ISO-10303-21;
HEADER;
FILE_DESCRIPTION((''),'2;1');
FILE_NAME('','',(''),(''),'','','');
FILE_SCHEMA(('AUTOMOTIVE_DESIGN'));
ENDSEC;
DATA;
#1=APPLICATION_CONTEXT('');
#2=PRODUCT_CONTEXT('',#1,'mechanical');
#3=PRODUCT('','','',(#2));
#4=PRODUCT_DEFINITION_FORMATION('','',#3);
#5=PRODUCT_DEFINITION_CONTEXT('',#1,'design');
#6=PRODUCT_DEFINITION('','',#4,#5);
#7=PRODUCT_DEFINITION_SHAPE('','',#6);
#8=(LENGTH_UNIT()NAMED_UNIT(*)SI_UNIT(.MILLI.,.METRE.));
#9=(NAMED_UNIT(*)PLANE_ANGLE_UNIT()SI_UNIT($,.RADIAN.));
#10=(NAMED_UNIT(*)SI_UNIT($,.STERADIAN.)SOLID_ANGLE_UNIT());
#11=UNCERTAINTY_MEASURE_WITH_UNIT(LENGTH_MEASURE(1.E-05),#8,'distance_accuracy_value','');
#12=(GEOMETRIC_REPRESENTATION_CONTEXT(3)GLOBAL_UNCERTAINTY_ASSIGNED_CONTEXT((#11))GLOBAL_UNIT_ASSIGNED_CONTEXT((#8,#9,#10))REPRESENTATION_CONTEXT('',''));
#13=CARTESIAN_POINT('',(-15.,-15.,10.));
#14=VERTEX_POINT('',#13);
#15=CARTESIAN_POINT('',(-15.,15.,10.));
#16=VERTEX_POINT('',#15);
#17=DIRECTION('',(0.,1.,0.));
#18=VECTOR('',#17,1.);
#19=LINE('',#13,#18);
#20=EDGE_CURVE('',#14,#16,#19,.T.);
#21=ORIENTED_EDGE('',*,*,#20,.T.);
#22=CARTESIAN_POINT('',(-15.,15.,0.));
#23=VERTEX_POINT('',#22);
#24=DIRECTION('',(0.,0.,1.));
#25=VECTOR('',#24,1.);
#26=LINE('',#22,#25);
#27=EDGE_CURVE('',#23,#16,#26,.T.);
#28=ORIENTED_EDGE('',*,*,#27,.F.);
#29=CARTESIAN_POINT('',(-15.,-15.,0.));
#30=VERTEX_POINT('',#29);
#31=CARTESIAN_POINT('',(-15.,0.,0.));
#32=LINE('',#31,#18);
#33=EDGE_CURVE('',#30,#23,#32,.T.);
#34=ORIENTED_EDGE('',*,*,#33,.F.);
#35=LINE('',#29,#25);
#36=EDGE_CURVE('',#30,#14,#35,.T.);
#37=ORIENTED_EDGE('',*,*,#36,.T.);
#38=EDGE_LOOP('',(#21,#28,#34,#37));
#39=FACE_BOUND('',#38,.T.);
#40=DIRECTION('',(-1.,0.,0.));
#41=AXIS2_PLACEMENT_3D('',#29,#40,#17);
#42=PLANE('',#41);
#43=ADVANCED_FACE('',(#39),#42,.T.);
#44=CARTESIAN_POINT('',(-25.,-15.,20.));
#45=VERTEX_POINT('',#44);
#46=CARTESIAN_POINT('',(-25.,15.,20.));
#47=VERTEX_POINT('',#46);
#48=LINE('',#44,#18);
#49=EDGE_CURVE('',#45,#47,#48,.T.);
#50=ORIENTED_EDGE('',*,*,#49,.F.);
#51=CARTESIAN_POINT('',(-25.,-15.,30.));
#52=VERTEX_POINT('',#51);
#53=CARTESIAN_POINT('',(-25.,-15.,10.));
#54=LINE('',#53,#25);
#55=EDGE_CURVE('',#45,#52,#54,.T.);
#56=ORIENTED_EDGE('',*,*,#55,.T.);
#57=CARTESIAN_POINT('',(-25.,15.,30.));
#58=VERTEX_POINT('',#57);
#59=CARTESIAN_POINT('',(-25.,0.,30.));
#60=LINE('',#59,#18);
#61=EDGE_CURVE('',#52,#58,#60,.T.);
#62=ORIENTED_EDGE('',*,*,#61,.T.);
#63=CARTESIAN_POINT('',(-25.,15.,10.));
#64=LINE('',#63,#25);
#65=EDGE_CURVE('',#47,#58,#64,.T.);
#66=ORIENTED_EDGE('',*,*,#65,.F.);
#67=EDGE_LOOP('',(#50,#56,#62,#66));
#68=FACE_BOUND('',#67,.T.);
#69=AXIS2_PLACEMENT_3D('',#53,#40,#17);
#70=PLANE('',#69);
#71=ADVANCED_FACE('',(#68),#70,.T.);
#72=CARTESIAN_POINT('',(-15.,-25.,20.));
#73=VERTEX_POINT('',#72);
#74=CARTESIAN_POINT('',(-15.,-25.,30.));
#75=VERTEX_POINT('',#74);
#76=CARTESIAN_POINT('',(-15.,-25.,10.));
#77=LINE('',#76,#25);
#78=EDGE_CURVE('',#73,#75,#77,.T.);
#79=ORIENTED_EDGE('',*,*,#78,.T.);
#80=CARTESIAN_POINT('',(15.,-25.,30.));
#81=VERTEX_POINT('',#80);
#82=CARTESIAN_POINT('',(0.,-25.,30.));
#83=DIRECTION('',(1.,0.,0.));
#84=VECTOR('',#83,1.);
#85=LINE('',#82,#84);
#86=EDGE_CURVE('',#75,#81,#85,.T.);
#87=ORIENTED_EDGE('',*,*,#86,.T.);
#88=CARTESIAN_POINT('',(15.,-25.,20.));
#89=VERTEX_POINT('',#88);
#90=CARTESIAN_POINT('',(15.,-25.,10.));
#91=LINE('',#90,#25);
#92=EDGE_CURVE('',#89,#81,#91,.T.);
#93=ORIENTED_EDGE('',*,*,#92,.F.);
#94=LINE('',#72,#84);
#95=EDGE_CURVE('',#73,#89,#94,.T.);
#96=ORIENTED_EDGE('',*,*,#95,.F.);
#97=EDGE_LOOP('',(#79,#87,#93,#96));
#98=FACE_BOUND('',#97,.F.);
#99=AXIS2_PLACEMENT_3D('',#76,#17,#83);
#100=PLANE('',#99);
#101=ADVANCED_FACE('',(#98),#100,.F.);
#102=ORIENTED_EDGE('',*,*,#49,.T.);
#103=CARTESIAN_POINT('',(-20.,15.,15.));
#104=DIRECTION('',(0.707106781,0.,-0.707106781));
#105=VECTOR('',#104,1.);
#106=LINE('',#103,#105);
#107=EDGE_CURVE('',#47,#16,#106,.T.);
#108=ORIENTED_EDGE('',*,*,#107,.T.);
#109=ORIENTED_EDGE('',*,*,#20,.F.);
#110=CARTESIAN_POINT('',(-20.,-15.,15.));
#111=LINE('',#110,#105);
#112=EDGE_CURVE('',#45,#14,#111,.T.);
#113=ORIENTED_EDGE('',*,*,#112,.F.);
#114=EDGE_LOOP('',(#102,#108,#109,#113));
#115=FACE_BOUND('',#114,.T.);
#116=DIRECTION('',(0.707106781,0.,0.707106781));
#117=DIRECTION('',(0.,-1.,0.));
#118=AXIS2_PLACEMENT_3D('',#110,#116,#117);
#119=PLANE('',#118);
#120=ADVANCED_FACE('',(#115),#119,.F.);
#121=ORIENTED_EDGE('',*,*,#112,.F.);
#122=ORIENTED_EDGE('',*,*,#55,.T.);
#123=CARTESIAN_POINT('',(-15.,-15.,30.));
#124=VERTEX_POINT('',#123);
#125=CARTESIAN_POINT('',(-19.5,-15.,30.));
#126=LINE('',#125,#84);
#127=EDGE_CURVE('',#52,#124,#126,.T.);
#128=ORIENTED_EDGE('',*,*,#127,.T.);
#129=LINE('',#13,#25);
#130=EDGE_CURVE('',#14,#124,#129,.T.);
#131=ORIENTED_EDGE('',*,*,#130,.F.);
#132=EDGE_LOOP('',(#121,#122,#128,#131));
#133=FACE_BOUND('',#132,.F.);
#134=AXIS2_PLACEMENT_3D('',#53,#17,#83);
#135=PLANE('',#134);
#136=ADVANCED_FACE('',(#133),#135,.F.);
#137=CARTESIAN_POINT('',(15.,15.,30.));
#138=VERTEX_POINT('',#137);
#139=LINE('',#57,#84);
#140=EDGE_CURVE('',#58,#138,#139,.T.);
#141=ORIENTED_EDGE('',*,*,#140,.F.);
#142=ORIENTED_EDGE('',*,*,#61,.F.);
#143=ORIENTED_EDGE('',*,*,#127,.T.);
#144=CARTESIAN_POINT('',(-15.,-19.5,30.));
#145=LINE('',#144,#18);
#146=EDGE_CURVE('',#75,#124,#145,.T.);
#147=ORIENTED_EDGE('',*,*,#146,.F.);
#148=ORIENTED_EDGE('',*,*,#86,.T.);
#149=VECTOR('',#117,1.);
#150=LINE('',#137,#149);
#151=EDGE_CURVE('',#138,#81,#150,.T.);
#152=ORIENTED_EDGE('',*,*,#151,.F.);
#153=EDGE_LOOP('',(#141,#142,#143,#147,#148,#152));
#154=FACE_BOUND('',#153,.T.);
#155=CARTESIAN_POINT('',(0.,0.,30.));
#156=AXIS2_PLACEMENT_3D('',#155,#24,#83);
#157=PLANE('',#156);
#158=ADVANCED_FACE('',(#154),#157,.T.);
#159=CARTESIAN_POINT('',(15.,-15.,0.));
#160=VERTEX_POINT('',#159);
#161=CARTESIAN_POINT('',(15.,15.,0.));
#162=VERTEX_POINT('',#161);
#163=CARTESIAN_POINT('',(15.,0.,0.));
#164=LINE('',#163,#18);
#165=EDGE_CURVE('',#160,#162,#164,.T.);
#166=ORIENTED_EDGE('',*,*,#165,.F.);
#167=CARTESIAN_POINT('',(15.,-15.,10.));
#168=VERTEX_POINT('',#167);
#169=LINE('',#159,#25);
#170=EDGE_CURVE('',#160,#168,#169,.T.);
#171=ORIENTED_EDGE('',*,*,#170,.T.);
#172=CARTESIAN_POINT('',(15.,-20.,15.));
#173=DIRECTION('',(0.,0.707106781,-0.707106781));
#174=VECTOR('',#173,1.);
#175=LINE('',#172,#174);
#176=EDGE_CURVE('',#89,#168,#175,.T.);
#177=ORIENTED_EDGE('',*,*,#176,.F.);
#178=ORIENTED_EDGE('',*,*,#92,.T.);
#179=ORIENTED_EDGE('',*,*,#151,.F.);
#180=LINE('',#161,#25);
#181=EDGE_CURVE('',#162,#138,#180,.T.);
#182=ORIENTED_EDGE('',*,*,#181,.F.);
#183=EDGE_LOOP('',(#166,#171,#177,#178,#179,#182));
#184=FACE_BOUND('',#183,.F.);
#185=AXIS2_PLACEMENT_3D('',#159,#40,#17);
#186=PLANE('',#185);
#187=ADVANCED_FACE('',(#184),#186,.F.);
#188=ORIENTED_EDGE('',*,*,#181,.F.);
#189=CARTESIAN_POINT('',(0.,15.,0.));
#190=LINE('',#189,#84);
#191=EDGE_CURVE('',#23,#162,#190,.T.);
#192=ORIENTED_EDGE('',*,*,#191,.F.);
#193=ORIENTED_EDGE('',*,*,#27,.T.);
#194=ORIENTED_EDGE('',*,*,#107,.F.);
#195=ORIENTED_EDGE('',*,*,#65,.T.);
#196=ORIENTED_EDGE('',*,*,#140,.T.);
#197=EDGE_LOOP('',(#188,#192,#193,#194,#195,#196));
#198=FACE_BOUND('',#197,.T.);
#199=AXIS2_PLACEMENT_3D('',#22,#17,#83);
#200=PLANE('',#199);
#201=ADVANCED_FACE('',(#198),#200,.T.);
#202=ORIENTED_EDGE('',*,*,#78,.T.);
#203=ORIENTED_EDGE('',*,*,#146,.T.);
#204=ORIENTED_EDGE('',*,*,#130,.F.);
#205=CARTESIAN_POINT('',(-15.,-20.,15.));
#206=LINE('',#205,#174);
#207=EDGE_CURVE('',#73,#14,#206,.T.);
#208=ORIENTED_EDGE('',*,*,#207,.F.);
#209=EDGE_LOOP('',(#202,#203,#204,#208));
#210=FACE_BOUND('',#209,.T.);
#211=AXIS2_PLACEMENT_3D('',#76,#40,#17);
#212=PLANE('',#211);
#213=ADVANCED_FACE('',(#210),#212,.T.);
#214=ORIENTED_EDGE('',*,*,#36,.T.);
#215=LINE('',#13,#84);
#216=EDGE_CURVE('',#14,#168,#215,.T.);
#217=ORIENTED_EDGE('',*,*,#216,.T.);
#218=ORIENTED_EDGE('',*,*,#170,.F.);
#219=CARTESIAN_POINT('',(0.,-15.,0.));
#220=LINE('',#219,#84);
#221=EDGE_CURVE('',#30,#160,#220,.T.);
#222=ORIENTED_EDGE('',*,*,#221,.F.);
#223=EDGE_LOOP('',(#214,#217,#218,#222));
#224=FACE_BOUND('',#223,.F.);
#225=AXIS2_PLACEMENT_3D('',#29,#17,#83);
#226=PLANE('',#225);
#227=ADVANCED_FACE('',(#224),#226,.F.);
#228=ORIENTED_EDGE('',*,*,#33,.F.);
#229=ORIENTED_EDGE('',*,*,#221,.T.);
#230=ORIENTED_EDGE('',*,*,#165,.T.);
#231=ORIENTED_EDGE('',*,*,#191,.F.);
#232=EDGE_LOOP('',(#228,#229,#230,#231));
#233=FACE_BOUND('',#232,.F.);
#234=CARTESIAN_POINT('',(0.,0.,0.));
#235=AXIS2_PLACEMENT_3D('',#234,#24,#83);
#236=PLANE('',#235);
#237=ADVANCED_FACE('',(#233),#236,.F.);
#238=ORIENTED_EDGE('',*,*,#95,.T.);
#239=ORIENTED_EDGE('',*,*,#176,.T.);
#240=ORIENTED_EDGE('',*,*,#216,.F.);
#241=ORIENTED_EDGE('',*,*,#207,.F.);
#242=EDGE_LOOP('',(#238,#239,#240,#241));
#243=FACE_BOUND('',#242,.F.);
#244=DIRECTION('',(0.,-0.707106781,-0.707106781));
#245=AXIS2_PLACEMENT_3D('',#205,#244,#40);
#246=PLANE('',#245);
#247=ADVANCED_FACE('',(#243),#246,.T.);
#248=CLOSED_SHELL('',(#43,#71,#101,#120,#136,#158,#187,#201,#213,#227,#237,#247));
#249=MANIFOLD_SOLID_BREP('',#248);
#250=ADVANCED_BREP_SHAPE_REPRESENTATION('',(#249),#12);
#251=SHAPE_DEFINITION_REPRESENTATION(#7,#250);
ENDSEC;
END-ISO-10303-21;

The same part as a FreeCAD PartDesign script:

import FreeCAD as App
import Part
import Sketcher

V = App.Vector
Q = App.Units.Quantity


def edges_at(feature, points):
    """Names of the edges that pass closest to the given points."""
    edges = feature.Shape.Edges
    near = lambda p: min(range(len(edges)), key=lambda i: edges[i].distToShape(Part.Vertex(*p))[0])
    return sorted({f"Edge{near(p) + 1}" for p in points})

doc = App.newDocument("Part")
params = doc.addObject("Spreadsheet::Sheet", "Params")
for row, (alias, value) in enumerate([
    ("sketch1_width", "30 mm"),
    ("sketch1_height", "11 mm"),
    ("pad1_length", "20 mm"),
    ("chamfer_size", "10 mm"),
    ("sketch2_width", "30 mm"),
    ("pad2_length", "30 mm"),
    ("sketch3_width", "11 mm"),
    ("sketch3_height", "30 mm"),
    ("pad3_length", "20 mm"),
    ("chamfer2_size", "10 mm"),
], start=1):
    params.set(f"A{row}", alias)
    params.set(f"B{row}", "=" + value)
    params.setAlias(f"B{row}", alias)

body = doc.addObject("PartDesign::Body", "Body")

# Sketch on XY plane
sketch1 = body.newObject("Sketcher::SketchObject", "Sketch")
sketch1.AttachmentSupport = (doc.getObject("XY_Plane"), [""])
sketch1.MapMode = "FlatFace"
sketch1.AttachmentOffset = App.Placement(V(0, 0, 10), App.Rotation())
sketch1.addGeometry(Part.LineSegment(V(-15, -14, 0), V(-15, -25, 0)), False)
sketch1.addGeometry(Part.LineSegment(V(-15, -25, 0), V(15, -25, 0)), False)
sketch1.addGeometry(Part.LineSegment(V(15, -25, 0), V(15, -14, 0)), False)
sketch1.addGeometry(Part.LineSegment(V(15, -14, 0), V(-15, -14, 0)), False)
sketch1.addConstraint(Sketcher.Constraint("Coincident", 0, 2, 1, 1))
sketch1.addConstraint(Sketcher.Constraint("Coincident", 1, 2, 2, 1))
sketch1.addConstraint(Sketcher.Constraint("Coincident", 2, 2, 3, 1))
sketch1.addConstraint(Sketcher.Constraint("Coincident", 3, 2, 0, 1))
sketch1.addConstraint(Sketcher.Constraint("Vertical", 0))
sketch1.addConstraint(Sketcher.Constraint("Horizontal", 1))
sketch1.addConstraint(Sketcher.Constraint("Vertical", 2))
sketch1.addConstraint(Sketcher.Constraint("Horizontal", 3))
sketch1.addConstraint(Sketcher.Constraint("DistanceX", 1, 1, 1, 2, Q("30 mm")))
sketch1.addConstraint(Sketcher.Constraint("DistanceY", 0, 2, 0, 1, Q("11 mm")))
sketch1.addConstraint(Sketcher.Constraint("DistanceX", 0, 2, -1, 1, Q("15 mm")))
sketch1.addConstraint(Sketcher.Constraint("DistanceY", 0, 2, -1, 1, Q("25 mm")))
sketch1.setExpression("Constraints[8]", "Params.sketch1_width")
sketch1.setExpression("Constraints[9]", "Params.sketch1_height")
pad1 = body.newObject("PartDesign::Pad", "Pad")
pad1.Profile = sketch1
pad1.setExpression("Length", "Params.pad1_length")
doc.recompute()

chamfer = body.newObject("PartDesign::Chamfer", "Chamfer")
chamfer.Base = (pad1, edges_at(pad1, [(0, -25, 10)]))
chamfer.setExpression("Size", "Params.chamfer_size")
body2 = doc.addObject("PartDesign::Body", "Body001")

# Sketch on XY plane
sketch2 = body2.newObject("Sketcher::SketchObject", "Sketch001")
sketch2.AttachmentSupport = (doc.getObject("XY_Plane001"), [""])
sketch2.MapMode = "FlatFace"
sketch2.addGeometry(Part.LineSegment(V(-15, 15, 0), V(-15, -15, 0)), False)
sketch2.addGeometry(Part.LineSegment(V(-15, -15, 0), V(15, -15, 0)), False)
sketch2.addGeometry(Part.LineSegment(V(15, -15, 0), V(15, 15, 0)), False)
sketch2.addGeometry(Part.LineSegment(V(15, 15, 0), V(-15, 15, 0)), False)
sketch2.addConstraint(Sketcher.Constraint("Coincident", 0, 2, 1, 1))
sketch2.addConstraint(Sketcher.Constraint("Coincident", 1, 2, 2, 1))
sketch2.addConstraint(Sketcher.Constraint("Coincident", 2, 2, 3, 1))
sketch2.addConstraint(Sketcher.Constraint("Coincident", 3, 2, 0, 1))
sketch2.addConstraint(Sketcher.Constraint("Vertical", 0))
sketch2.addConstraint(Sketcher.Constraint("Horizontal", 1))
sketch2.addConstraint(Sketcher.Constraint("Vertical", 2))
sketch2.addConstraint(Sketcher.Constraint("Horizontal", 3))
sketch2.addConstraint(Sketcher.Constraint("Symmetric", 0, 2, 2, 2, -1, 1))
sketch2.addConstraint(Sketcher.Constraint("Equal", 3, 0))
sketch2.addConstraint(Sketcher.Constraint("DistanceX", 1, 1, 1, 2, Q("30 mm")))
sketch2.setExpression("Constraints[10]", "Params.sketch2_width")
pad2 = body2.newObject("PartDesign::Pad", "Pad001")
pad2.Profile = sketch2
pad2.setExpression("Length", "Params.pad2_length")
body3 = doc.addObject("PartDesign::Body", "Body002")

# Sketch on XY plane
sketch3 = body3.newObject("Sketcher::SketchObject", "Sketch002")
sketch3.AttachmentSupport = (doc.getObject("XY_Plane002"), [""])
sketch3.MapMode = "FlatFace"
sketch3.AttachmentOffset = App.Placement(V(0, 0, 10), App.Rotation())
sketch3.addGeometry(Part.LineSegment(V(-25, 15, 0), V(-25, -15, 0)), False)
sketch3.addGeometry(Part.LineSegment(V(-25, -15, 0), V(-14, -15, 0)), False)
sketch3.addGeometry(Part.LineSegment(V(-14, -15, 0), V(-14, 15, 0)), False)
sketch3.addGeometry(Part.LineSegment(V(-14, 15, 0), V(-25, 15, 0)), False)
sketch3.addConstraint(Sketcher.Constraint("Coincident", 0, 2, 1, 1))
sketch3.addConstraint(Sketcher.Constraint("Coincident", 1, 2, 2, 1))
sketch3.addConstraint(Sketcher.Constraint("Coincident", 2, 2, 3, 1))
sketch3.addConstraint(Sketcher.Constraint("Coincident", 3, 2, 0, 1))
sketch3.addConstraint(Sketcher.Constraint("Vertical", 0))
sketch3.addConstraint(Sketcher.Constraint("Horizontal", 1))
sketch3.addConstraint(Sketcher.Constraint("Vertical", 2))
sketch3.addConstraint(Sketcher.Constraint("Horizontal", 3))
sketch3.addConstraint(Sketcher.Constraint("DistanceX", 1, 1, 1, 2, Q("11 mm")))
sketch3.addConstraint(Sketcher.Constraint("DistanceY", 0, 2, 0, 1, Q("30 mm")))
sketch3.addConstraint(Sketcher.Constraint("DistanceX", 0, 2, -1, 1, Q("25 mm")))
sketch3.addConstraint(Sketcher.Constraint("DistanceY", 0, 2, -1, 1, Q("15 mm")))
sketch3.setExpression("Constraints[8]", "Params.sketch3_width")
sketch3.setExpression("Constraints[9]", "Params.sketch3_height")
pad3 = body3.newObject("PartDesign::Pad", "Pad002")
pad3.Profile = sketch3
pad3.setExpression("Length", "Params.pad3_length")
doc.recompute()

chamfer2 = body3.newObject("PartDesign::Chamfer", "Chamfer001")
chamfer2.Base = (pad3, edges_at(pad3, [(-25, 0, 10)]))
chamfer2.setExpression("Size", "Params.chamfer2_size")
doc.recompute()

boolean = body3.newObject("PartDesign::Boolean", "Boolean")
boolean.Type = "Fuse"
boolean.addObjects([body])
doc.recompute()

boolean2 = body3.newObject("PartDesign::Boolean", "Boolean001")
boolean2.Type = "Fuse"
boolean2.addObjects([body2])

doc.recompute()
